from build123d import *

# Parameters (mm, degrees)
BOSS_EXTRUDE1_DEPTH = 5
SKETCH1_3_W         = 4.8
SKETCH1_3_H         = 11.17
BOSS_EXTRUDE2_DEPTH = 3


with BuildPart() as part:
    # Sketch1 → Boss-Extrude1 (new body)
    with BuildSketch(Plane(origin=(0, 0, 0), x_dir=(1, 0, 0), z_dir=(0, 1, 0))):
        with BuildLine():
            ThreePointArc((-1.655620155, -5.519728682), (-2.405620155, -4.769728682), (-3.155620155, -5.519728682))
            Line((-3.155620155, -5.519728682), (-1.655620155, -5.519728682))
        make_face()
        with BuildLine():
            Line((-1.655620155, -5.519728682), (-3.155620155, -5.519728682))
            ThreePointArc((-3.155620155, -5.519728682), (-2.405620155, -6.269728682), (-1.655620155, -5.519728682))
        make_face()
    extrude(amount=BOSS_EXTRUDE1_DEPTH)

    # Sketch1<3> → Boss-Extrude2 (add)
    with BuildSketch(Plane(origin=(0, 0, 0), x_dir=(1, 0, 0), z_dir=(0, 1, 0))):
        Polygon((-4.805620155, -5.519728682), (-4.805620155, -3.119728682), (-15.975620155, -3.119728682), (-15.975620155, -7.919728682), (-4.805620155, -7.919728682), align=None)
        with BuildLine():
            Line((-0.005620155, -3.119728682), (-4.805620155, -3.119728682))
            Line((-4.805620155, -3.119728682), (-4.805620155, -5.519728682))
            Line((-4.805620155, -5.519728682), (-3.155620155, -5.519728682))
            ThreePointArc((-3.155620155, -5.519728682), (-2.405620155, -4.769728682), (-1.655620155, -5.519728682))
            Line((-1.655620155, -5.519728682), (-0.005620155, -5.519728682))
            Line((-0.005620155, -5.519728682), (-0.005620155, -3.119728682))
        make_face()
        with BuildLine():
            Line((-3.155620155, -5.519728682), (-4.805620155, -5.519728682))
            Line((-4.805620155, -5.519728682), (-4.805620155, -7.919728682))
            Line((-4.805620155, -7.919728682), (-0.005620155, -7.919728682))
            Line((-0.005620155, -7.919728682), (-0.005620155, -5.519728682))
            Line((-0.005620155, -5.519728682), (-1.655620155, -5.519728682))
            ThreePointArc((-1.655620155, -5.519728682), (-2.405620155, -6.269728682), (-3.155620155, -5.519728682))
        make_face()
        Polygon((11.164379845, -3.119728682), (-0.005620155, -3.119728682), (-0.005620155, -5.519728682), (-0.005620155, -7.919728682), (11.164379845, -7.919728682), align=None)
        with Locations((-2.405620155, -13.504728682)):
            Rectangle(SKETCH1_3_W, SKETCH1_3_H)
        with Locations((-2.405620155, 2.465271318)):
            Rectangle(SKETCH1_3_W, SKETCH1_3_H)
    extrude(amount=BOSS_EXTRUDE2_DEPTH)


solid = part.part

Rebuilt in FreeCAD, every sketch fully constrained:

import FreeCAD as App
import Part
import Sketcher


def add_polygon(sketch, points):
    """Adds a closed chain of lines whose ends are joined by coincident constraints."""
    first, n = sketch.GeometryCount, len(points)
    for a, b in zip(points, points[1:] + points[:1]):
        sketch.addGeometry(Part.LineSegment(App.Vector(*a, 0), App.Vector(*b, 0)), False)
    for i in range(n):
        sketch.addConstraint(Sketcher.Constraint("Coincident", first + i, 2, first + (i + 1) % n, 1))

doc = App.newDocument("Part")
body = doc.addObject("PartDesign::Body", "Body")

sketch1 = doc.addObject("Sketcher::SketchObject", "Sketch")
body.addObject(sketch1)
sketch1.AttachmentSupport = (doc.XZ_Plane, [""])
sketch1.MapMode = "FlatFace"
sketch1.addGeometry(Part.Circle(App.Vector(-2.40562, 5.519729, 0), App.Vector(0, 0, 1), 0.75), False)
sketch1.addConstraint(Sketcher.Constraint("Diameter", 0, 1.5))
sketch1.addConstraint(Sketcher.Constraint("DistanceX", 0, 3, -1, 1, 2.40562))
sketch1.addConstraint(Sketcher.Constraint("DistanceY", -1, 1, 0, 3, 5.519729))
pad1 = doc.addObject("PartDesign::Pad", "Pad")
body.addObject(pad1)
pad1.Profile = sketch1
pad1.Length = 5
pad1.Reversed = True

sketch2 = doc.addObject("Sketcher::SketchObject", "Sketch001")
body.addObject(sketch2)
sketch2.AttachmentSupport = (doc.XZ_Plane, [""])
sketch2.MapMode = "FlatFace"
add_polygon(sketch2, [(-15.97562, 3.119729), (-15.97562, 7.919729), (-4.80562, 7.919729), (-4.80562, 19.089729), (-0.00562, 19.089729), (-0.00562, 7.919729), (11.16438, 7.919729), (11.16438, 3.119729), (-0.00562, 3.119729), (-0.00562, -8.050271), (-4.80562, -8.050271), (-4.80562, 3.119729)])
sketch2.addGeometry(Part.Circle(App.Vector(-2.40562, 5.519729, 0), App.Vector(0, 0, 1), 0.75), False)
sketch2.addConstraint(Sketcher.Constraint("Vertical", 0))
sketch2.addConstraint(Sketcher.Constraint("Horizontal", 1))
sketch2.addConstraint(Sketcher.Constraint("Vertical", 2))
sketch2.addConstraint(Sketcher.Constraint("Horizontal", 3))
sketch2.addConstraint(Sketcher.Constraint("Vertical", 4))
sketch2.addConstraint(Sketcher.Constraint("Horizontal", 5))
sketch2.addConstraint(Sketcher.Constraint("Vertical", 6))
sketch2.addConstraint(Sketcher.Constraint("Horizontal", 7))
sketch2.addConstraint(Sketcher.Constraint("Vertical", 8))
sketch2.addConstraint(Sketcher.Constraint("Horizontal", 9))
sketch2.addConstraint(Sketcher.Constraint("Vertical", 10))
sketch2.addConstraint(Sketcher.Constraint("Horizontal", 11))
sketch2.addConstraint(Sketcher.Constraint("Horizontal", 1, 2, 4, 2))
sketch2.addConstraint(Sketcher.Constraint("Horizontal", 7, 2, 10, 2))
sketch2.addConstraint(Sketcher.Constraint("Vertical", 4, 2, 7, 2))
sketch2.addConstraint(Sketcher.Constraint("Vertical", 2, 2, 9, 2))
sketch2.addConstraint(Sketcher.Constraint("Equal", 1, 5))
sketch2.addConstraint(Sketcher.Constraint("Equal", 9, 0))
sketch2.addConstraint(Sketcher.Constraint("Equal", 11, 2))
sketch2.addConstraint(Sketcher.Constraint("Equal", 4, 8))
sketch2.addConstraint(Sketcher.Constraint("Diameter", 12, 1.5))
sketch2.addConstraint(Sketcher.Constraint("DistanceX", 3, 1, 3, 2, 4.8))
sketch2.addConstraint(Sketcher.Constraint("DistanceX", 1, 1, 1, 2, 11.17))
sketch2.addConstraint(Sketcher.Constraint("DistanceY", 12, 3, 0, 2, 2.4))
sketch2.addConstraint(Sketcher.Constraint("DistanceX", 1, 2, 12, 3, 2.4))
sketch2.addConstraint(Sketcher.Constraint("DistanceX", 12, 3, -1, 1, 2.40562))
sketch2.addConstraint(Sketcher.Constraint("DistanceY", -1, 1, 12, 3, 5.519729))
pad2 = doc.addObject("PartDesign::Pad", "Pad001")
body.addObject(pad2)
pad2.Profile = sketch2
pad2.Length = 3
pad2.Reversed = True

doc.recompute()
